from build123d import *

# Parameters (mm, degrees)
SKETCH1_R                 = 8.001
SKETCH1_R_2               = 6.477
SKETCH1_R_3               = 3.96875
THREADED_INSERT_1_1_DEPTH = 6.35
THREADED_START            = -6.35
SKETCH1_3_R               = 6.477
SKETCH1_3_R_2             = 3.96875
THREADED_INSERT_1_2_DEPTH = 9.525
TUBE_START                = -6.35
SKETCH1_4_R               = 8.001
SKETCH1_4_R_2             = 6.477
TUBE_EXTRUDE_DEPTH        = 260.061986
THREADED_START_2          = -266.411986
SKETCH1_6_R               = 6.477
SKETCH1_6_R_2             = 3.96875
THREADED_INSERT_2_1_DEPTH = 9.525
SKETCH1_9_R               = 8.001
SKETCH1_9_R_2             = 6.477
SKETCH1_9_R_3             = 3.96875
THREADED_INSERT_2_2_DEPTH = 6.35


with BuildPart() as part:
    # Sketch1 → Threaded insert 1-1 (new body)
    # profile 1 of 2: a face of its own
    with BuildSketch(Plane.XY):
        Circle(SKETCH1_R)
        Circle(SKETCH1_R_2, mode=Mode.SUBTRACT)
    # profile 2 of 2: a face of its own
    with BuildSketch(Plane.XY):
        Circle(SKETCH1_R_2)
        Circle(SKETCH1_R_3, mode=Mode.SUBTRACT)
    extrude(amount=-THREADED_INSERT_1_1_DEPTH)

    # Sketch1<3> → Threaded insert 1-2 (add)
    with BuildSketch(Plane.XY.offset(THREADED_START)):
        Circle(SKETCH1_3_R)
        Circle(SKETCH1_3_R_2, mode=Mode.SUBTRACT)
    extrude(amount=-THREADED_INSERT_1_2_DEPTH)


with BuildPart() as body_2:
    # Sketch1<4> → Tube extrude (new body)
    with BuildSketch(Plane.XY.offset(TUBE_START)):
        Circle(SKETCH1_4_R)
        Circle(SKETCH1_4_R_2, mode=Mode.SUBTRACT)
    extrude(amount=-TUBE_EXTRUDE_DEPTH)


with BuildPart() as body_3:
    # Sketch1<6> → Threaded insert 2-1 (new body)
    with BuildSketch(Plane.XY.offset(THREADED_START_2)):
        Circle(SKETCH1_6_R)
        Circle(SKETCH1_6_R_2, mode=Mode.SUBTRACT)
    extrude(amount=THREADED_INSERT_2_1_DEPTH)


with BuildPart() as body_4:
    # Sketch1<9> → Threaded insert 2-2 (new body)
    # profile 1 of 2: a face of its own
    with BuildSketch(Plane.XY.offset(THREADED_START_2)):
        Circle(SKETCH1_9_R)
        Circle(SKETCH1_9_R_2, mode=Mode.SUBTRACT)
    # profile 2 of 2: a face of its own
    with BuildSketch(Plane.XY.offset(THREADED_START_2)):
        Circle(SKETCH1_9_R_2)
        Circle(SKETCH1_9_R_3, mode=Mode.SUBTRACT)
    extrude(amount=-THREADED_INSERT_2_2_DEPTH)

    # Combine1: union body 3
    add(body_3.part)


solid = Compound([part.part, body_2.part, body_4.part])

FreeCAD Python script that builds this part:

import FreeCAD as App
import Part
import Sketcher

V = App.Vector
Q = App.Units.Quantity

doc = App.newDocument("Part")
body = doc.addObject("PartDesign::Body", "Body")

# Sketch on XY plane
sketch1 = doc.addObject("Sketcher::SketchObject", "Sketch")
body.addObject(sketch1)
sketch1.AttachmentSupport = (doc.XY_Plane, [""])
sketch1.MapMode = "FlatFace"
sketch1.addGeometry([
    Part.Circle(V(0, 0, 0), V(0, 0, 1), 8),
    Part.Circle(V(0, 0, 0), V(0, 0, 1), 4),
], False)
sketch1.addConstraint([
    Sketcher.Constraint("Coincident", 0, 3, -1, 1),
    Sketcher.Constraint("Coincident", 1, 3, -1, 1),
    Sketcher.Constraint("Diameter", 0, Q("0.63 in")),
    Sketcher.Constraint("Diameter", 1, Q("0.3125 in")),
])
pad1 = doc.addObject("PartDesign::Pad", "Pad")
body.addObject(pad1)
pad1.Profile = sketch1
pad1.Length = Q("0.25 in")
pad1.Reversed = True

# Sketch on XY plane
sketch2 = doc.addObject("Sketcher::SketchObject", "Sketch001")
body.addObject(sketch2)
sketch2.AttachmentSupport = (doc.XY_Plane, [""])
sketch2.MapMode = "FlatFace"
sketch2.AttachmentOffset = App.Placement(V(0, 0, -0.25 * 25.4), App.Rotation())
sketch2.addGeometry([
    Part.Circle(V(0, 0, 0), V(0, 0, 1), 6.5),
    Part.Circle(V(0, 0, 0), V(0, 0, 1), 4),
], False)
sketch2.addConstraint([
    Sketcher.Constraint("Coincident", 0, 3, -1, 1),
    Sketcher.Constraint("Coincident", 1, 3, -1, 1),
    Sketcher.Constraint("Diameter", 0, Q("0.51 in")),
    Sketcher.Constraint("Diameter", 1, Q("0.3125 in")),
])
pad2 = doc.addObject("PartDesign::Pad", "Pad001")
body.addObject(pad2)
pad2.Profile = sketch2
pad2.Length = Q("0.375 in")
pad2.Reversed = True
body2 = doc.addObject("PartDesign::Body", "Body001")

# Sketch on XY plane
sketch3 = doc.addObject("Sketcher::SketchObject", "Sketch002")
body2.addObject(sketch3)
sketch3.AttachmentSupport = (doc.getObject("XY_Plane001"), [""])
sketch3.MapMode = "FlatFace"
sketch3.AttachmentOffset = App.Placement(V(0, 0, -0.25 * 25.4), App.Rotation())
sketch3.addGeometry([
    Part.Circle(V(0, 0, 0), V(0, 0, 1), 8),
    Part.Circle(V(0, 0, 0), V(0, 0, 1), 6),
], False)
sketch3.addConstraint([
    Sketcher.Constraint("Coincident", 0, 3, -1, 1),
    Sketcher.Constraint("Coincident", 1, 3, -1, 1),
    Sketcher.Constraint("Diameter", 0, Q("0.63 in")),
    Sketcher.Constraint("Diameter", 1, Q("0.51 in")),
])
pad3 = doc.addObject("PartDesign::Pad", "Pad002")
body2.addObject(pad3)
pad3.Profile = sketch3
pad3.Length = 260.061986
pad3.Reversed = True
body3 = doc.addObject("PartDesign::Body", "Body002")

# Sketch on XY plane
sketch4 = doc.addObject("Sketcher::SketchObject", "Sketch003")
body3.addObject(sketch4)
sketch4.AttachmentSupport = (doc.getObject("XY_Plane002"), [""])
sketch4.MapMode = "FlatFace"
sketch4.AttachmentOffset = App.Placement(V(0, 0, -266.411986), App.Rotation())
sketch4.addGeometry([
    Part.Circle(V(0, 0, 0), V(0, 0, 1), 6.5),
    Part.Circle(V(0, 0, 0), V(0, 0, 1), 4),
], False)
sketch4.addConstraint([
    Sketcher.Constraint("Coincident", 0, 3, -1, 1),
    Sketcher.Constraint("Coincident", 1, 3, -1, 1),
    Sketcher.Constraint("Diameter", 0, Q("0.51 in")),
    Sketcher.Constraint("Diameter", 1, Q("0.3125 in")),
])
pad4 = doc.addObject("PartDesign::Pad", "Pad003")
body3.addObject(pad4)
pad4.Profile = sketch4
pad4.Length = Q("0.375 in")
body4 = doc.addObject("PartDesign::Body", "Body003")

# Sketch on XY plane
sketch5 = doc.addObject("Sketcher::SketchObject", "Sketch004")
body4.addObject(sketch5)
sketch5.AttachmentSupport = (doc.getObject("XY_Plane003"), [""])
sketch5.MapMode = "FlatFace"
sketch5.AttachmentOffset = App.Placement(V(0, 0, -266.411986), App.Rotation())
sketch5.addGeometry([
    Part.Circle(V(0, 0, 0), V(0, 0, 1), 8),
    Part.Circle(V(0, 0, 0), V(0, 0, 1), 4),
], False)
sketch5.addConstraint([
    Sketcher.Constraint("Coincident", 0, 3, -1, 1),
    Sketcher.Constraint("Coincident", 1, 3, -1, 1),
    Sketcher.Constraint("Diameter", 0, Q("0.63 in")),
    Sketcher.Constraint("Diameter", 1, Q("0.3125 in")),
])
pad5 = doc.addObject("PartDesign::Pad", "Pad004")
body4.addObject(pad5)
pad5.Profile = sketch5
pad5.Length = Q("0.25 in")
pad5.Reversed = True
doc.recompute()

boolean = doc.addObject("PartDesign::Boolean", "Boolean")
body4.addObject(boolean)
boolean.Type = "Fuse"
boolean.addObjects([body3])

doc.recompute()
